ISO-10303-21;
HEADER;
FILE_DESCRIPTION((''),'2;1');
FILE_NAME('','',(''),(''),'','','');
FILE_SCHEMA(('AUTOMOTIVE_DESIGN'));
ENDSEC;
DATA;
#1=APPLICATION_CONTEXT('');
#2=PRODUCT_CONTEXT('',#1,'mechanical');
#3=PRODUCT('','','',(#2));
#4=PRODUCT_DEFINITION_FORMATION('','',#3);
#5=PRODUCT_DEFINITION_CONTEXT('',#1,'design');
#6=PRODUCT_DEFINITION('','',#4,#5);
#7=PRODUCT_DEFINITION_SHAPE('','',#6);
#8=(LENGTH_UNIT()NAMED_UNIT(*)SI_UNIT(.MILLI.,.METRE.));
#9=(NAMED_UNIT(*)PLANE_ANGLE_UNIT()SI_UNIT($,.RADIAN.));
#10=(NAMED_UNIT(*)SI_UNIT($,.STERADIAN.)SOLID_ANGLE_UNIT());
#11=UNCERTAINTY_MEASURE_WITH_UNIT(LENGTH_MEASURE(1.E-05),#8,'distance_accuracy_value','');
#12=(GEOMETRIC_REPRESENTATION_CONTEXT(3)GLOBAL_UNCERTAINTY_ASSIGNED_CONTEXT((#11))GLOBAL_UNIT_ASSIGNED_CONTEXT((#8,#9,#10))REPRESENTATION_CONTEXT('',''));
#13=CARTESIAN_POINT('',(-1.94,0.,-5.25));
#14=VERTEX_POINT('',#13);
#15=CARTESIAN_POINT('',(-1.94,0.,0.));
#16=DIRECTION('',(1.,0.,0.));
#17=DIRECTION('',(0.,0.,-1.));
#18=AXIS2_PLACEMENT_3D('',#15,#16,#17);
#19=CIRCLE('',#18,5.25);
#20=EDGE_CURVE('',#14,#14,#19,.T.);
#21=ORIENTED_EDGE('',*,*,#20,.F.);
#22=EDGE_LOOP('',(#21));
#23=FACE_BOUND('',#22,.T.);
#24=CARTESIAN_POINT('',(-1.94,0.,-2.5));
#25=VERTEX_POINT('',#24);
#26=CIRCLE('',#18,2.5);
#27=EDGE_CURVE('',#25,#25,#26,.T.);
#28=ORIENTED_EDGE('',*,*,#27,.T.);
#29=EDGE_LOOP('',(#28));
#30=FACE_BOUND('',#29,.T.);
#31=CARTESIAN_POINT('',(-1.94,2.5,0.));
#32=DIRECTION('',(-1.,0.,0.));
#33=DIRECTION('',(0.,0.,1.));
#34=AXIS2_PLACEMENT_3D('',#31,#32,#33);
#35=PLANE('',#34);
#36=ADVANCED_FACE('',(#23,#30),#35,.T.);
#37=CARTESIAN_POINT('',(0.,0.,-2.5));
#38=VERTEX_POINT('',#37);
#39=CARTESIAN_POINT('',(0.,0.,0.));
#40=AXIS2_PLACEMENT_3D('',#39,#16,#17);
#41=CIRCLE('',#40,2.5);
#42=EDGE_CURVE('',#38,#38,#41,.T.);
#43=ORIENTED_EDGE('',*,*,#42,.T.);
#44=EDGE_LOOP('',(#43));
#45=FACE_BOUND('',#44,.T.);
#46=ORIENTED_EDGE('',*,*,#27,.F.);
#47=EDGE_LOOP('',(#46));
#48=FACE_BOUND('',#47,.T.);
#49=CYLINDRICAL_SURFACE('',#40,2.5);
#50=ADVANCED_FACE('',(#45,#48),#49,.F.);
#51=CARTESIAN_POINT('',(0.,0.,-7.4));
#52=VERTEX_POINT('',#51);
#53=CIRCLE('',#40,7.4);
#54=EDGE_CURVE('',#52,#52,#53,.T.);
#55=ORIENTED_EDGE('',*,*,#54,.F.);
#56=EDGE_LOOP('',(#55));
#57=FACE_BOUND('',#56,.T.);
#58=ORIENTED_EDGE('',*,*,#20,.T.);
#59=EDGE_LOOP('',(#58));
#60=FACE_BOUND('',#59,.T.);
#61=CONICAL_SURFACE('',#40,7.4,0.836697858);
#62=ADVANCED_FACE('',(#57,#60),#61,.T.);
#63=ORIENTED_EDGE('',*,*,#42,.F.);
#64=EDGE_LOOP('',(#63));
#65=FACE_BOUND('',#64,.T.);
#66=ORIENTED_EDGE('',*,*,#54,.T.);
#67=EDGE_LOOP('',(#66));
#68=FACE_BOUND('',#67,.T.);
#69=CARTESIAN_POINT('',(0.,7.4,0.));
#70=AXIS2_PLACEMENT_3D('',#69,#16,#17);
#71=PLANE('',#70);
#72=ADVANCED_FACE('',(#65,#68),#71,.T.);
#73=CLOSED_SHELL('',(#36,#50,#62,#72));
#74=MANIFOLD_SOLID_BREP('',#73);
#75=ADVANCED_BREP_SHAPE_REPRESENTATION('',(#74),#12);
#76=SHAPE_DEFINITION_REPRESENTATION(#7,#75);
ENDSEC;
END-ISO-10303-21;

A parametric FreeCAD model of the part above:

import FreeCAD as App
import Part
import Sketcher
from FreeCAD import Vector
Q = App.Units.Quantity


def add_polygon(sketch, points):
    """Adds a closed chain of lines whose ends are joined by coincident constraints."""
    first, n = sketch.GeometryCount, len(points)
    for a, b in zip(points, points[1:] + points[:1]):
        sketch.addGeometry(Part.LineSegment(App.Vector(*a, 0), App.Vector(*b, 0)), False)
    for i in range(n):
        sketch.addConstraint(Sketcher.Constraint("Coincident", first + i, 2, first + (i + 1) % n, 1))

doc = App.newDocument("Part")
body = doc.addObject("PartDesign::Body", "Body")

# Sketch on XY plane
sketch1 = body.newObject("Sketcher::SketchObject", "Sketch")
sketch1.AttachmentSupport = (doc.getObject("XY_Plane"), [""])
sketch1.MapMode = "FlatFace"
add_polygon(sketch1, [(-1.9, 5.2), (-1.9, 2.5), (0, 2.5), (0, 7.4)])  # lines 0-3
sketch1.addConstraint(Sketcher.Constraint("Vertical", 0))
sketch1.addConstraint(Sketcher.Constraint("Horizontal", 1))
sketch1.addConstraint(Sketcher.Constraint("Vertical", 2))
sketch1.addConstraint(Sketcher.Constraint("PointOnObject", 1, 2, -2))
sketch1.addConstraint(Sketcher.Constraint("DistanceY", 2, 1, 2, 2, Q("4.9 mm")))
sketch1.addConstraint(Sketcher.Constraint("DistanceX", 1, 1, 1, 2, Q("1.94 mm")))
sketch1.addConstraint(Sketcher.Constraint("DistanceY", 0, 2, 0, 1, Q("2.75 mm")))
sketch1.addConstraint(Sketcher.Constraint("DistanceY", -1, 1, 0, 2, Q("2.5 mm")))
revolution = body.newObject("PartDesign::Revolution", "Revolution")
revolution.Profile = sketch1
revolution.ReferenceAxis = (sketch1, ["H_Axis"])
revolution.Angle = 360

doc.recompute()
